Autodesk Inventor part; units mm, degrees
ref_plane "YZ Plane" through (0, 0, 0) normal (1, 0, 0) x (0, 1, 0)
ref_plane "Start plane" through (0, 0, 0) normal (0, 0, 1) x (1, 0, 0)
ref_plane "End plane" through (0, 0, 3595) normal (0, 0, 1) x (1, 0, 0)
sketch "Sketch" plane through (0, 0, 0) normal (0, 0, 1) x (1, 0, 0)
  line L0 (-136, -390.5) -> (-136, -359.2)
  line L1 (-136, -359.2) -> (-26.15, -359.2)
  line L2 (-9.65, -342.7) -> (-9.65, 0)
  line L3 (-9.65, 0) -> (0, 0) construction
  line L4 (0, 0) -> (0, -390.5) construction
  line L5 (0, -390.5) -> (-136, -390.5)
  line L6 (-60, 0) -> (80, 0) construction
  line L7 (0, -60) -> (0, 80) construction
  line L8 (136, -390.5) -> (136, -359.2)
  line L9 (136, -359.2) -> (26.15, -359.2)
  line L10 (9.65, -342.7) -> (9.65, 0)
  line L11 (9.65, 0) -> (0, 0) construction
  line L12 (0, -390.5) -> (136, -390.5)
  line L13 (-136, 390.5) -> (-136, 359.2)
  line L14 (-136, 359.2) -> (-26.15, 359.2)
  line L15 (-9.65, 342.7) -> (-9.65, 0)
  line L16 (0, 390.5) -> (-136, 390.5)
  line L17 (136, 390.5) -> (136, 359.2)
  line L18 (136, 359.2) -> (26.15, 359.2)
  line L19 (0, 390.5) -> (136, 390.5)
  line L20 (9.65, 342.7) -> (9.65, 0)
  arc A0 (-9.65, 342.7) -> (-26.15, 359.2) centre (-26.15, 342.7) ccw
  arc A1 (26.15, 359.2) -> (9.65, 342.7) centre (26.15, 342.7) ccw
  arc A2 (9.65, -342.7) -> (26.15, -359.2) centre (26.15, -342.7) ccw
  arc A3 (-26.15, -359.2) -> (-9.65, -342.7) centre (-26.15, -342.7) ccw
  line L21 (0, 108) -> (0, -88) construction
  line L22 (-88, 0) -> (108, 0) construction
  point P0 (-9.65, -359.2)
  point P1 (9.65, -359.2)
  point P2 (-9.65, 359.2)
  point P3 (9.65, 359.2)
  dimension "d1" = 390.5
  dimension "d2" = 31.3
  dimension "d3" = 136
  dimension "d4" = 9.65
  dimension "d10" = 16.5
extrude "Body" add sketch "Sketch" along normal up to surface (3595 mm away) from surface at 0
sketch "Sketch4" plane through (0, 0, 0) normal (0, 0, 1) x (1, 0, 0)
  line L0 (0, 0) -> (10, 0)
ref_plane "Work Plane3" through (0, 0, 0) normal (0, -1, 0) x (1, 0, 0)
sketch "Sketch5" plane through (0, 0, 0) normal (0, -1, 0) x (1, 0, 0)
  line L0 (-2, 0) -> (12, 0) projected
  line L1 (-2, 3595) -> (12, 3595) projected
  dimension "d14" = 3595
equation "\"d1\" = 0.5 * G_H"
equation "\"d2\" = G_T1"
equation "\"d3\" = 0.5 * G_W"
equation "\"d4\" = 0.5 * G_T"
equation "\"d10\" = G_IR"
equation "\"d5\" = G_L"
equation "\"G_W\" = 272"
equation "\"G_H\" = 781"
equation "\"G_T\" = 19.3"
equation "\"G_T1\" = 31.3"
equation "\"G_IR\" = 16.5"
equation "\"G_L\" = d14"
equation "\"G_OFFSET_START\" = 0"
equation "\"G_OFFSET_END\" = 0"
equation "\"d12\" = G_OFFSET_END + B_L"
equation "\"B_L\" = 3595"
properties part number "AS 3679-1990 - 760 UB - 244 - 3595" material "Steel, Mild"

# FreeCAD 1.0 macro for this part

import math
import FreeCAD as App
import Part
import Sketcher

doc = App.newDocument("Part")
body = doc.addObject("PartDesign::Body", "Body")

# Sketch on XY plane
sketch1 = doc.addObject("Sketcher::SketchObject", "Sketch")
body.addObject(sketch1)
sketch1.AttachmentSupport = (doc.XY_Plane, [""])
sketch1.MapMode = "FlatFace"
sketch1.addGeometry([
    Part.LineSegment(App.Vector(-136, -359, 0), App.Vector(-136, -390, 0)),  # 0
    Part.LineSegment(App.Vector(-136, -390, 0), App.Vector(136, -390, 0)),  # 1
    Part.LineSegment(App.Vector(136, -390, 0), App.Vector(136, -359, 0)),  # 2
    Part.LineSegment(App.Vector(136, -359, 0), App.Vector(26, -359, 0)),  # 3
    Part.ArcOfCircle(Part.Circle(App.Vector(26, -343, 0), App.Vector(0, 0, 1), 16), math.radians(180), math.radians(270)),  # 4
    Part.LineSegment(App.Vector(10, -343, 0), App.Vector(10, 343, 0)),  # 5
    Part.ArcOfCircle(Part.Circle(App.Vector(26, 343, 0), App.Vector(0, 0, 1), 16), math.radians(90), math.radians(180)),  # 6
    Part.LineSegment(App.Vector(26, 359, 0), App.Vector(136, 359, 0)),  # 7
    Part.LineSegment(App.Vector(136, 359, 0), App.Vector(136, 390, 0)),  # 8
    Part.LineSegment(App.Vector(136, 390, 0), App.Vector(-136, 390, 0)),  # 9
    Part.LineSegment(App.Vector(-136, 390, 0), App.Vector(-136, 359, 0)),  # 10
    Part.LineSegment(App.Vector(-136, 359, 0), App.Vector(-26, 359, 0)),  # 11
    Part.ArcOfCircle(Part.Circle(App.Vector(-26, 343, 0), App.Vector(0, 0, 1), 16), math.radians(0), math.radians(90)),  # 12
    Part.LineSegment(App.Vector(-10, 343, 0), App.Vector(-10, -343, 0)),  # 13
    Part.ArcOfCircle(Part.Circle(App.Vector(-26, -343, 0), App.Vector(0, 0, 1), 16), math.radians(-90), math.radians(0)),  # 14
    Part.LineSegment(App.Vector(-26, -359, 0), App.Vector(-136, -359, 0)),  # 15
], False)
sketch1.addConstraint([
    Sketcher.Constraint("Coincident", 0, 2, 1, 1),
    Sketcher.Constraint("Coincident", 1, 2, 2, 1),
    Sketcher.Constraint("Coincident", 2, 2, 3, 1),
    Sketcher.Constraint("Tangent", 3, 2, 4, 2),
    Sketcher.Constraint("Tangent", 4, 1, 5, 1),
    Sketcher.Constraint("Tangent", 5, 2, 6, 2),
    Sketcher.Constraint("Tangent", 6, 1, 7, 1),
    Sketcher.Constraint("Coincident", 7, 2, 8, 1),
    Sketcher.Constraint("Coincident", 8, 2, 9, 1),
    Sketcher.Constraint("Coincident", 9, 2, 10, 1),
    Sketcher.Constraint("Coincident", 10, 2, 11, 1),
    Sketcher.Constraint("Tangent", 11, 2, 12, 2),
    Sketcher.Constraint("Tangent", 12, 1, 13, 1),
    Sketcher.Constraint("Tangent", 13, 2, 14, 2),
    Sketcher.Constraint("Tangent", 14, 1, 15, 1),
    Sketcher.Constraint("Coincident", 15, 2, 0, 1),
    Sketcher.Constraint("Vertical", 0),
    Sketcher.Constraint("Horizontal", 1),
    Sketcher.Constraint("Vertical", 2),
    Sketcher.Constraint("Horizontal", 3),
    Sketcher.Constraint("Vertical", 5),
    Sketcher.Constraint("Horizontal", 7),
    Sketcher.Constraint("Vertical", 8),
    Sketcher.Constraint("Horizontal", 9),
    Sketcher.Constraint("Vertical", 10),
    Sketcher.Constraint("Horizontal", 11),
    Sketcher.Constraint("Vertical", 13),
    Sketcher.Constraint("Horizontal", 15),
    Sketcher.Constraint("Equal", 4, 6),
    Sketcher.Constraint("Equal", 6, 12),
    Sketcher.Constraint("Equal", 12, 14),
    Sketcher.Constraint("Symmetric", 4, 3, 12, 3, -1, 1),
    Sketcher.Constraint("Symmetric", 0, 2, 8, 2, -1, 1),
    Sketcher.Constraint("Symmetric", 7, 2, 10, 2, -2),
    Sketcher.Constraint("Symmetric", 2, 2, 15, 2, -2),
    Sketcher.Constraint("Radius", 4, 16.5),
    Sketcher.Constraint("DistanceY", 0, 2, 0, 1, 31.3),
    Sketcher.Constraint("DistanceX", 0, 2, -1, 1, 136.0),
    Sketcher.Constraint("DistanceY", 0, 2, -1, 1, 390.5),
    Sketcher.Constraint("DistanceX", -1, 1, 4, 1, 9.65),
])
pad1 = doc.addObject("PartDesign::Pad", "Pad")
body.addObject(pad1)
pad1.Profile = sketch1
pad1.Length = 3595

doc.recompute()
